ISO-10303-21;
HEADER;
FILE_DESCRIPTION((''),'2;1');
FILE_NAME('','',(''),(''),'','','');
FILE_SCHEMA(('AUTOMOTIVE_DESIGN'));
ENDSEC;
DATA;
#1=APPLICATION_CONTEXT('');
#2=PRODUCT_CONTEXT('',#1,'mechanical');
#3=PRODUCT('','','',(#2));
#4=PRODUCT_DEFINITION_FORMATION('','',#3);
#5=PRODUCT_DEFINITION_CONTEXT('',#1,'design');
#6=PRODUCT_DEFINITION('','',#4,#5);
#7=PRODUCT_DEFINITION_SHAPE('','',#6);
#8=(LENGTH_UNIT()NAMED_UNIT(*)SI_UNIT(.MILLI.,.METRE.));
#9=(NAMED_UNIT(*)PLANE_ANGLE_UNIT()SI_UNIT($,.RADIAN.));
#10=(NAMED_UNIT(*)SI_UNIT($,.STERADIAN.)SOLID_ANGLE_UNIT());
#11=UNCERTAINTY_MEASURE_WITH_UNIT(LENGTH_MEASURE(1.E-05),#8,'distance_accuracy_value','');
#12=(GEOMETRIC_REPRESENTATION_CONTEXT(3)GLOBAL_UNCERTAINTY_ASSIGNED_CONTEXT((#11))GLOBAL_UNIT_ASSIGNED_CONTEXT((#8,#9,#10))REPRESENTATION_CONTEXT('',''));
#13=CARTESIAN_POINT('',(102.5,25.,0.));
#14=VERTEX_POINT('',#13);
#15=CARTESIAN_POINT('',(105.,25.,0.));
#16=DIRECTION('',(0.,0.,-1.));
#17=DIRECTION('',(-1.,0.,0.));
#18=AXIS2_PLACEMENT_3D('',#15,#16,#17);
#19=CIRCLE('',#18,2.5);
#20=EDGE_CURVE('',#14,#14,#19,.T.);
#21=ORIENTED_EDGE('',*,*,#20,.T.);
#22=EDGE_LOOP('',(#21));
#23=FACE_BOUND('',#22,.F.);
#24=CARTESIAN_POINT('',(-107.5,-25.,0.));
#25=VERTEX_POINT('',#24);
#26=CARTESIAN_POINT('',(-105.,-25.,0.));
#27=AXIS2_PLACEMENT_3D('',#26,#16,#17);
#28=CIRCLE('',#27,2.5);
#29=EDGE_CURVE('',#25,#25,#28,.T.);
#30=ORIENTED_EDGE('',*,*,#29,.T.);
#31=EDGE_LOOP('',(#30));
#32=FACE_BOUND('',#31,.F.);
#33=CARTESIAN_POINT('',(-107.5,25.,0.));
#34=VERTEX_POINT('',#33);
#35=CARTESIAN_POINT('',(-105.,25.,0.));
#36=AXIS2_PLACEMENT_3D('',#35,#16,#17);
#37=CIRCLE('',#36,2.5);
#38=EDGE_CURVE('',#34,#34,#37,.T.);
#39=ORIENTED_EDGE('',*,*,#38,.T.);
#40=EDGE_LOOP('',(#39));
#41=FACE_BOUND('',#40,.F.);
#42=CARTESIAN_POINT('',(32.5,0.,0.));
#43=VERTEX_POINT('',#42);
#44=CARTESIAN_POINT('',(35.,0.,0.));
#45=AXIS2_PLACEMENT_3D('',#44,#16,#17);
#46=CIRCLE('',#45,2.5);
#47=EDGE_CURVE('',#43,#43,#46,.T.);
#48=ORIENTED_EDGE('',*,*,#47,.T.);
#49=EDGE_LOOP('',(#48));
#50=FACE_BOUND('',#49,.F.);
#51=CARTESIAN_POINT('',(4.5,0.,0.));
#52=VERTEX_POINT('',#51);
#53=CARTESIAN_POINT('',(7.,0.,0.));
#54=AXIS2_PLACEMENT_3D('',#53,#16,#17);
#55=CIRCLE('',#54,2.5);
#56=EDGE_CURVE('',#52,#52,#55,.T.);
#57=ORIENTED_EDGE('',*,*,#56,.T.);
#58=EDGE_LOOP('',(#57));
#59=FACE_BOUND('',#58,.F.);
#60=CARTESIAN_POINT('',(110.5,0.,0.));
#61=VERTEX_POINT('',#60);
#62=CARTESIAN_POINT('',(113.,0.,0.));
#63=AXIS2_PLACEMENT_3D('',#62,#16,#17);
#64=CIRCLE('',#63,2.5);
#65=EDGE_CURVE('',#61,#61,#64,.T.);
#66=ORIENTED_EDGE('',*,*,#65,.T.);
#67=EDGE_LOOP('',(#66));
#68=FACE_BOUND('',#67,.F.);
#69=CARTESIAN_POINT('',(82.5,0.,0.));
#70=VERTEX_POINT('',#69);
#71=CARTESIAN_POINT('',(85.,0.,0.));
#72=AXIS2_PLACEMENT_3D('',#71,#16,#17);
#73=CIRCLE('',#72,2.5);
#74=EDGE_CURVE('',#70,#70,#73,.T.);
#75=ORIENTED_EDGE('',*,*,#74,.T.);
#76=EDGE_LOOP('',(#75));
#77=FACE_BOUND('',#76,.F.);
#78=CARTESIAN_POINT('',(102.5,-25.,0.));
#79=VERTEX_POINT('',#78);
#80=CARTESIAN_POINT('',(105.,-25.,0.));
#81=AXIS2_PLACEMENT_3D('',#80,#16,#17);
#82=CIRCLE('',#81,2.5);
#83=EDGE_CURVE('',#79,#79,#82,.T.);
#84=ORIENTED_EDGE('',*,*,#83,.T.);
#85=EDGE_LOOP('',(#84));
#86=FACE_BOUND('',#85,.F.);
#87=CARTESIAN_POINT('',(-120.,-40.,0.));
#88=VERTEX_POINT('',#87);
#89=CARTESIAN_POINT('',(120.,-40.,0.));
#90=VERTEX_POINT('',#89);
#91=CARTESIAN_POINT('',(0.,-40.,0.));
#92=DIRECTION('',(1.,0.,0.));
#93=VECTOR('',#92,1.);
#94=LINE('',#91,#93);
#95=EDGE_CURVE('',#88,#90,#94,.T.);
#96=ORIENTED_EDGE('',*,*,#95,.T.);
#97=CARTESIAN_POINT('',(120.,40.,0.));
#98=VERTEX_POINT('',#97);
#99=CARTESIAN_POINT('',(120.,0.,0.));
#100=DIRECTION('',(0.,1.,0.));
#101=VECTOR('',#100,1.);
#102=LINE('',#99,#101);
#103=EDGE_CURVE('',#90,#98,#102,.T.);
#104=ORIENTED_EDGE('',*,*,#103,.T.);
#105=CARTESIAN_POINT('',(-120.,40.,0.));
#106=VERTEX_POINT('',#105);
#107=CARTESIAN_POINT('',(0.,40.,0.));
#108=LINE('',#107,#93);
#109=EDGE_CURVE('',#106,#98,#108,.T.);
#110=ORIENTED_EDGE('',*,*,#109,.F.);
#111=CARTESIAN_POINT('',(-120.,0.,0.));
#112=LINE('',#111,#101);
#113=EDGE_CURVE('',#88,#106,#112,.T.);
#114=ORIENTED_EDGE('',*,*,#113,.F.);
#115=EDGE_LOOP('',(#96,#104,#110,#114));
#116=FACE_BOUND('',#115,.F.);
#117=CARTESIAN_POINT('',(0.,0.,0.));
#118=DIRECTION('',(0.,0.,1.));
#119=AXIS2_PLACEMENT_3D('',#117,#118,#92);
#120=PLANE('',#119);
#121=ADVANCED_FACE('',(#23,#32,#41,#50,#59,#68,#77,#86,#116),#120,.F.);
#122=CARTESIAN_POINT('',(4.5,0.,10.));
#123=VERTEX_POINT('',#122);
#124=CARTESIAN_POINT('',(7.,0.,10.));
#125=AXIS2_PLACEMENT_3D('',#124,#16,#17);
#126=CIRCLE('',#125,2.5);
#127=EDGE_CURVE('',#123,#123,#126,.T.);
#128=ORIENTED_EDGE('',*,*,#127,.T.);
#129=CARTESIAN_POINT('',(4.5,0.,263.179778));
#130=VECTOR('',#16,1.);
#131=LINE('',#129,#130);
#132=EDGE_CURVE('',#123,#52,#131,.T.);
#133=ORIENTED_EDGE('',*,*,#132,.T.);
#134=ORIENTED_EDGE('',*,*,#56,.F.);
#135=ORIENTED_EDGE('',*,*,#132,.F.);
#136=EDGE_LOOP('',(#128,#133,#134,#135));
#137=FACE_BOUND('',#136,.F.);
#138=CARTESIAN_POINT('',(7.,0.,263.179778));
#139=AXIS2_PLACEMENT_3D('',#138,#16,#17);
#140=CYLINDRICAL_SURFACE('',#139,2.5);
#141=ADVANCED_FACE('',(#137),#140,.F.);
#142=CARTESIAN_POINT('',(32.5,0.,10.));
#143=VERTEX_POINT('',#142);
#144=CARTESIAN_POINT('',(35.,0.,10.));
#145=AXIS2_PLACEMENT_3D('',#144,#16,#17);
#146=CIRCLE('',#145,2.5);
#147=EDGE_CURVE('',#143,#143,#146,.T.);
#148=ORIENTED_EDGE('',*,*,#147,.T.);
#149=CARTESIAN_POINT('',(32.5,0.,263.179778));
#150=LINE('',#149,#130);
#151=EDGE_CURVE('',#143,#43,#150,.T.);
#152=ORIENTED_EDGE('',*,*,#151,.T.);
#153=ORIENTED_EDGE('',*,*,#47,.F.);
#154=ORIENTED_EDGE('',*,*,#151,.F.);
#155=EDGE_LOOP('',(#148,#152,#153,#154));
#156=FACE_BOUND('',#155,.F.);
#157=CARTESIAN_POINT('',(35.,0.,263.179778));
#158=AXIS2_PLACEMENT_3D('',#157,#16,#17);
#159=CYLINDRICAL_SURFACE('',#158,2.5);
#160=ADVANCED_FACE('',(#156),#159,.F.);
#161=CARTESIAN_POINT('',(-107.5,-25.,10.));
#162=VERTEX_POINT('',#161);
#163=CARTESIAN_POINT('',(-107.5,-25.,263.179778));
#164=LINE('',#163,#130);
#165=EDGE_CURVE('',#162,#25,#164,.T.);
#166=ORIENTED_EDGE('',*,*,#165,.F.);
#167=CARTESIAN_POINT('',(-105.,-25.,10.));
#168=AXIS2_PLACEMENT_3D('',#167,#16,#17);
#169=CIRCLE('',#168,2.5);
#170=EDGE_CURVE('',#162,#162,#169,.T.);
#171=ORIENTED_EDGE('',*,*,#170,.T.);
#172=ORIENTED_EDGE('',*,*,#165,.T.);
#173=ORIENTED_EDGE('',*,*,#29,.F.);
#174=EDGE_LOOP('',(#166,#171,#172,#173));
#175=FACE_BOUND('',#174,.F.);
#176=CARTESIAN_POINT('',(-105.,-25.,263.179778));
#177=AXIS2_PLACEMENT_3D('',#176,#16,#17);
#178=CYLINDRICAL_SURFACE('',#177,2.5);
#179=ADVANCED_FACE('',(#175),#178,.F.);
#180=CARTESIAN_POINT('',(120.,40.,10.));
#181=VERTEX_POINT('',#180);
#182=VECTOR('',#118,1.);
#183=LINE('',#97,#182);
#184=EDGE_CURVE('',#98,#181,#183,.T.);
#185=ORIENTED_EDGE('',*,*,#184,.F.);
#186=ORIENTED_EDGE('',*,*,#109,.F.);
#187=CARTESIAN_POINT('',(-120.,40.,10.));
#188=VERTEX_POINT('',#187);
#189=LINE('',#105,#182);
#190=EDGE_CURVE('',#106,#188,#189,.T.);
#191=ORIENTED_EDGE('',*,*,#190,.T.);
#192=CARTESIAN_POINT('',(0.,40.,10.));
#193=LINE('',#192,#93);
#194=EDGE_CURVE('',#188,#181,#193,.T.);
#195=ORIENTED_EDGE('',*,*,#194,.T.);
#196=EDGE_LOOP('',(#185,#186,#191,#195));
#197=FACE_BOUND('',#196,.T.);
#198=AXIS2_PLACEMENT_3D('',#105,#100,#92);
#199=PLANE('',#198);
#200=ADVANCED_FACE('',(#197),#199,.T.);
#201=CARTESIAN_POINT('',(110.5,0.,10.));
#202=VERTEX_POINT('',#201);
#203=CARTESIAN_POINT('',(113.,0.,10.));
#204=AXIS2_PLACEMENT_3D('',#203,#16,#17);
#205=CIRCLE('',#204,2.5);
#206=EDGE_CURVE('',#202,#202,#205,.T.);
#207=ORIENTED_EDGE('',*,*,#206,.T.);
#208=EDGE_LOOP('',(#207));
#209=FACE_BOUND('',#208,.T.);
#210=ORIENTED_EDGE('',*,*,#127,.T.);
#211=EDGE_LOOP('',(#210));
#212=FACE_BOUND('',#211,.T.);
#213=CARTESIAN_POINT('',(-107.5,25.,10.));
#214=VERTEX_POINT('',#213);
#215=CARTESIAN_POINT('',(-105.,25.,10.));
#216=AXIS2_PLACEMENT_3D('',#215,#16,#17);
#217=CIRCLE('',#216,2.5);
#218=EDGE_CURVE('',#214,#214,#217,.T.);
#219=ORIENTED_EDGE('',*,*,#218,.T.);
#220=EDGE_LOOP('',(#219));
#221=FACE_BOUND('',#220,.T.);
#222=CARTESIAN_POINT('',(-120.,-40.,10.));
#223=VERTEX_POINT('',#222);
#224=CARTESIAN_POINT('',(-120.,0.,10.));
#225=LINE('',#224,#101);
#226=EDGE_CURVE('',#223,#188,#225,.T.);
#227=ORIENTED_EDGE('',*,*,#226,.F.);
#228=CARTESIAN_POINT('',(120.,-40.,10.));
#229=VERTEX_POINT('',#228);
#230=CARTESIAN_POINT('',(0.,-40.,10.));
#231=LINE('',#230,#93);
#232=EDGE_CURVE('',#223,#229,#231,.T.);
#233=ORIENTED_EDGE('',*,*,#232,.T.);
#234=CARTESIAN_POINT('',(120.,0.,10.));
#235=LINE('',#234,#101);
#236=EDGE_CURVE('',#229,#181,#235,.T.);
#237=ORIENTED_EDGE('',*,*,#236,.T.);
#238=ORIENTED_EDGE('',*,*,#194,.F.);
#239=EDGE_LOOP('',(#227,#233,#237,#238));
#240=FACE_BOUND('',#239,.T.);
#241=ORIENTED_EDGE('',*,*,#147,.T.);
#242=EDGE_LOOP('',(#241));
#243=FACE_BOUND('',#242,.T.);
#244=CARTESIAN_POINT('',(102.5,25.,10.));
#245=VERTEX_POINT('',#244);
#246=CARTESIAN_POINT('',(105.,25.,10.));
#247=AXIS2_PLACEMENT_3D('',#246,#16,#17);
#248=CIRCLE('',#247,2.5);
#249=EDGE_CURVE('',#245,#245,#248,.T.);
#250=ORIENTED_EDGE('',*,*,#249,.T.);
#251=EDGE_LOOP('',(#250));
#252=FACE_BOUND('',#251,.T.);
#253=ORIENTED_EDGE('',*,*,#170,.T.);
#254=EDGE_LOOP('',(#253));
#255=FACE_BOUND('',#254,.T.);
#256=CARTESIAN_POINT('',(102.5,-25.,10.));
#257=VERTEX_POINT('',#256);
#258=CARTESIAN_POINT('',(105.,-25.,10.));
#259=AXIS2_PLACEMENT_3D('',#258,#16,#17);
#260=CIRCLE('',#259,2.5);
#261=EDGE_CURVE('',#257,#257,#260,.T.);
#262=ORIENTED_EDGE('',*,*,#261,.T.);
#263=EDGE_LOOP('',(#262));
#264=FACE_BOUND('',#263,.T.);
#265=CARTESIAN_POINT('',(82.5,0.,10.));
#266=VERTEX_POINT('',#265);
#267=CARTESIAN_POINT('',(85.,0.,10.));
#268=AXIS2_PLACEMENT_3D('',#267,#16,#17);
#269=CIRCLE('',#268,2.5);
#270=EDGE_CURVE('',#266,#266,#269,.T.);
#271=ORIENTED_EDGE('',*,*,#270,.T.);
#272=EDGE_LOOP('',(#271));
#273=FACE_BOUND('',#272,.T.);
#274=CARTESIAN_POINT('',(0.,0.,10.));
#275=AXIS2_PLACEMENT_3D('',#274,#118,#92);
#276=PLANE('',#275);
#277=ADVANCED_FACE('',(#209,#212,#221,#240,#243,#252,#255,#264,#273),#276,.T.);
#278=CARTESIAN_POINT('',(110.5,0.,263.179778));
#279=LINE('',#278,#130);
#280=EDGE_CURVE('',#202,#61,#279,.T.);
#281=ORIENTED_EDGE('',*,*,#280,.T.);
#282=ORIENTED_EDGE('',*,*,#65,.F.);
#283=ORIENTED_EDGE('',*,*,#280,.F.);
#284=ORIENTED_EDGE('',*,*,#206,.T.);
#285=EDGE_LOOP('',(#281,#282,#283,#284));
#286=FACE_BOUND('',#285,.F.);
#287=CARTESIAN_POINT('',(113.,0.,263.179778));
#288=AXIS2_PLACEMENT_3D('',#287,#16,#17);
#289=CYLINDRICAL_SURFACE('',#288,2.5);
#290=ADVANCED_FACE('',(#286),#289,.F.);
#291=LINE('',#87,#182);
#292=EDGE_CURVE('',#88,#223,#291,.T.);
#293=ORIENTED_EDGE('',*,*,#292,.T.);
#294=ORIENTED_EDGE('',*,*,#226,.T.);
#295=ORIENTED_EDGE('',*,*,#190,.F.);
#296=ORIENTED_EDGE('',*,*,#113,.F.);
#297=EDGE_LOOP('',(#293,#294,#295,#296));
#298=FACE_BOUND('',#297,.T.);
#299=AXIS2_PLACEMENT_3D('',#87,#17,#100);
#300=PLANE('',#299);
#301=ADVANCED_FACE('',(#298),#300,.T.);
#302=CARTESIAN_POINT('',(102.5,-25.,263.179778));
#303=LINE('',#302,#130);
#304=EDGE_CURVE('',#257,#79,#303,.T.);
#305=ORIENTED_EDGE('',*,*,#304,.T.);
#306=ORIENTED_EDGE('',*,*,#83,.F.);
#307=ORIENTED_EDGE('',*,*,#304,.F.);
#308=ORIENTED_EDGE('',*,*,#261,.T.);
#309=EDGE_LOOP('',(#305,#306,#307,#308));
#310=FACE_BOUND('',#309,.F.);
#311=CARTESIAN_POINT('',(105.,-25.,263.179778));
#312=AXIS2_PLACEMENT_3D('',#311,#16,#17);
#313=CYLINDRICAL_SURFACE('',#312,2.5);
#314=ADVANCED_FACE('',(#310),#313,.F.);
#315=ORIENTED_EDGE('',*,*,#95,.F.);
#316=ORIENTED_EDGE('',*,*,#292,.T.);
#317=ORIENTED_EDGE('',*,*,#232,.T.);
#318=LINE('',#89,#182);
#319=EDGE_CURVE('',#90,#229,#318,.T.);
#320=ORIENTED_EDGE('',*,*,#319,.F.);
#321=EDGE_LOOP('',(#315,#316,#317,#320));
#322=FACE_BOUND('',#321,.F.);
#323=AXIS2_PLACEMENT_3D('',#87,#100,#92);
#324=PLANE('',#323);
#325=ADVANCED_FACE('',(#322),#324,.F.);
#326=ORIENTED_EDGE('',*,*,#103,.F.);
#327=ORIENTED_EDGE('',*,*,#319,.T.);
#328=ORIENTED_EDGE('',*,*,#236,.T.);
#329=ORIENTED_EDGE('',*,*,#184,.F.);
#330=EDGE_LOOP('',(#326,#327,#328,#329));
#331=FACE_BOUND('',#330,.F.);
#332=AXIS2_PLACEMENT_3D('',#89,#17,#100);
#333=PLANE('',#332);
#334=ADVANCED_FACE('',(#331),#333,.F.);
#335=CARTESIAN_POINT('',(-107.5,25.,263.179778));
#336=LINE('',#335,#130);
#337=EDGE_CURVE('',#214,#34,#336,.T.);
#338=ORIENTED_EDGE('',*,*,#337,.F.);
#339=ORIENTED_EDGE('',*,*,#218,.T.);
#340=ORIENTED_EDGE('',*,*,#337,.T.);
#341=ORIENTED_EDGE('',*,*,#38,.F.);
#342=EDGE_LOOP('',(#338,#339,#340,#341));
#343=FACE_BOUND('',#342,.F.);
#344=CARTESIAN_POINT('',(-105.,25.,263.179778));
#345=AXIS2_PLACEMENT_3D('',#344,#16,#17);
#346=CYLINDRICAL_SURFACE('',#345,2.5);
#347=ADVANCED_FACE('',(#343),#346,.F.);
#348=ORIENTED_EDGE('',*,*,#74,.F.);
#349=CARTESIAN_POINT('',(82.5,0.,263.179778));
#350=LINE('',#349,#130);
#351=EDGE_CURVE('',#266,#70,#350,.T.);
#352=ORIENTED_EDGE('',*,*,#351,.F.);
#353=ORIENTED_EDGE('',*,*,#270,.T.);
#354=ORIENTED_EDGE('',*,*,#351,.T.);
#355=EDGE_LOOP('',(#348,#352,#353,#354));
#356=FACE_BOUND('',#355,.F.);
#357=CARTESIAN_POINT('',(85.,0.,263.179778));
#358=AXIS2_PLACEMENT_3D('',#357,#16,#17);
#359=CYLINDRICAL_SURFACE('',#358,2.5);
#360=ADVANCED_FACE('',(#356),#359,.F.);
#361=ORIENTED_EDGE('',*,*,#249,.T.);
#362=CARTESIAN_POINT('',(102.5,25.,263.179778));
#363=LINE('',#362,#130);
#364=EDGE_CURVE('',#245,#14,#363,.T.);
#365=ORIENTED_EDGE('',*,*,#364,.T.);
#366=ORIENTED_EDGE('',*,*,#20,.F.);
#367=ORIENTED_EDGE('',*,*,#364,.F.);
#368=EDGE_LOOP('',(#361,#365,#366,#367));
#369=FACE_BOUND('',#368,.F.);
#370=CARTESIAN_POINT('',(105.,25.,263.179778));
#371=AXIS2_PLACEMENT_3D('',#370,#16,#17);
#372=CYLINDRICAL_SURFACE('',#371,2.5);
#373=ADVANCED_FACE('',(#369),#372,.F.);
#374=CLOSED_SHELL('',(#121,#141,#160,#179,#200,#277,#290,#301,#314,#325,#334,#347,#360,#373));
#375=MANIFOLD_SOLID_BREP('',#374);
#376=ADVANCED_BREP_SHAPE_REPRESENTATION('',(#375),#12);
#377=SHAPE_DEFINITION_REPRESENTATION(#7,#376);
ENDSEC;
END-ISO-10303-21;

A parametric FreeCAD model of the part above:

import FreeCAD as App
import Part
import Sketcher

V = App.Vector

doc = App.newDocument("Part")
params = doc.addObject("Spreadsheet::Sheet", "Params")
for row, (alias, value) in enumerate([
    ("sketch1_width", "240 mm"),
    ("sketch1_height", "80 mm"),
    ("pad1_length", "10 mm"),
    ("sketch2_diameter", "5 mm"),
    ("hole_diameter", "5 mm"),
], start=1):
    params.set(f"A{row}", alias)
    params.set(f"B{row}", "=" + value)
    params.setAlias(f"B{row}", alias)

body = doc.addObject("PartDesign::Body", "Body")

# Sketch on XY plane
sketch1 = body.newObject("Sketcher::SketchObject", "Sketch")
sketch1.AttachmentSupport = (doc.getObject("XY_Plane"), [""])
sketch1.MapMode = "FlatFace"
sketch1.addGeometry([
    Part.LineSegment(V(-120, 40, 0), V(-120, -40, 0)),
    Part.LineSegment(V(-120, -40, 0), V(120, -40, 0)),
    Part.LineSegment(V(120, -40, 0), V(120, 40, 0)),
    Part.LineSegment(V(120, 40, 0), V(-120, 40, 0)),
], False)
sketch1.addConstraint([
    Sketcher.Constraint("Coincident", 0, 2, 1, 1),
    Sketcher.Constraint("Coincident", 1, 2, 2, 1),
    Sketcher.Constraint("Coincident", 2, 2, 3, 1),
    Sketcher.Constraint("Coincident", 3, 2, 0, 1),
    Sketcher.Constraint("Vertical", 0),
    Sketcher.Constraint("Horizontal", 1),
    Sketcher.Constraint("Vertical", 2),
    Sketcher.Constraint("Horizontal", 3),
    Sketcher.Constraint("Symmetric", 0, 2, 2, 2, -1, 1),
    Sketcher.Constraint("DistanceX", 1, 1, 1, 2, 240.0),
    Sketcher.Constraint("DistanceY", 0, 2, 0, 1, 80.0),
])
sketch1.setExpression("Constraints[9]", "Params.sketch1_width")
sketch1.setExpression("Constraints[10]", "Params.sketch1_height")
pad1 = body.newObject("PartDesign::Pad", "Pad")
pad1.Profile = sketch1
pad1.setExpression("Length", "Params.pad1_length")

# Sketch on XY plane
sketch2 = body.newObject("Sketcher::SketchObject", "Sketch001")
sketch2.AttachmentSupport = (doc.getObject("XY_Plane"), [""])
sketch2.MapMode = "FlatFace"
sketch2.AttachmentOffset = App.Placement(V(0, 0, 10), App.Rotation())
sketch2.addGeometry([
    Part.Circle(V(-105, 25, 0), V(0, 0, 1), 2.5),  # 0
    Part.Circle(V(-105, -25, 0), V(0, 0, 1), 2.5),  # 1
    Part.Circle(V(105, 25, 0), V(0, 0, 1), 2.5),  # 2
    Part.Circle(V(105, -25, 0), V(0, 0, 1), 2.5),  # 3
    Part.Circle(V(7, 0, 0), V(0, 0, 1), 2.5),  # 4
    Part.Circle(V(35, 0, 0), V(0, 0, 1), 2.5),  # 5
    Part.Circle(V(85, 0, 0), V(0, 0, 1), 2.5),  # 6
    Part.Circle(V(113, 0, 0), V(0, 0, 1), 2.5),  # 7
], False)
sketch2.addConstraint([
    Sketcher.Constraint("Equal", 0, 1),
    Sketcher.Constraint("Equal", 1, 2),
    Sketcher.Constraint("Equal", 2, 3),
    Sketcher.Constraint("Equal", 3, 4),
    Sketcher.Constraint("Equal", 4, 5),
    Sketcher.Constraint("Equal", 5, 6),
    Sketcher.Constraint("Equal", 6, 7),
    Sketcher.Constraint("Symmetric", 1, 3, 2, 3, -1, 1),
    Sketcher.Constraint("Symmetric", 0, 3, 3, 3, -1, 1),
    Sketcher.Constraint("Symmetric", 0, 3, 2, 3, -2),
    Sketcher.Constraint("PointOnObject", 4, 3, -1),
    Sketcher.Constraint("PointOnObject", 5, 3, -1),
    Sketcher.Constraint("PointOnObject", 6, 3, -1),
    Sketcher.Constraint("PointOnObject", 7, 3, -1),
    Sketcher.Constraint("Diameter", 0, 5.0),
    Sketcher.Constraint("DistanceX", 0, 3, -1, 1, 105.0),
    Sketcher.Constraint("DistanceY", -1, 1, 0, 3, 25.0),
    Sketcher.Constraint("DistanceX", -1, 1, 4, 3, 7.0),
    Sketcher.Constraint("DistanceX", -1, 1, 5, 3, 35.0),
    Sketcher.Constraint("DistanceX", -1, 1, 6, 3, 85.0),
    Sketcher.Constraint("DistanceX", -1, 1, 7, 3, 113.0),
])
sketch2.setExpression("Constraints[14]", "Params.sketch2_diameter")
doc.recompute()
hole = body.newObject("PartDesign::Hole", "Hole")
hole.Profile = sketch2
hole.ThreadType = "None"
hole.setExpression("Diameter", "Params.hole_diameter")
hole.DepthType = "ThroughAll"

doc.recompute()
